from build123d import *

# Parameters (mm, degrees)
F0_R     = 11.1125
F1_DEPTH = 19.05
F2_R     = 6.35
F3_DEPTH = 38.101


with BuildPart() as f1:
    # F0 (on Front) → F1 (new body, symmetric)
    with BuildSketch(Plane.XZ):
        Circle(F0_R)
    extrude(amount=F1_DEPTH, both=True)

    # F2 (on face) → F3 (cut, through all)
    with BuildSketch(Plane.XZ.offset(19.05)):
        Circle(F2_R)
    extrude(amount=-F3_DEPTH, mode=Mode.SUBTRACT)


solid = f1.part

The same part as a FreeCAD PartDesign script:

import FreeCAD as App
import Part
import Sketcher

V = App.Vector
Q = App.Units.Quantity

doc = App.newDocument("Part")
body = doc.addObject("PartDesign::Body", "Body")

sketch1 = doc.addObject("Sketcher::SketchObject", "Sketch")
body.addObject(sketch1)
sketch1.AttachmentSupport = (doc.XZ_Plane, [""])
sketch1.MapMode = "FlatFace"
sketch1.addGeometry(Part.Circle(V(0, 0, 0), V(0, 0, 1), 11), False)
sketch1.addConstraint(Sketcher.Constraint("Coincident", 0, 3, -1, 1))
sketch1.addConstraint(Sketcher.Constraint("Diameter", 0, Q("0.875 in")))
pad1 = doc.addObject("PartDesign::Pad", "Pad")
body.addObject(pad1)
pad1.Profile = sketch1
pad1.Length = Q("1.5 in")
pad1.Midplane = True

sketch2 = doc.addObject("Sketcher::SketchObject", "Sketch001")
body.addObject(sketch2)
sketch2.AttachmentSupport = (doc.XZ_Plane, [""])
sketch2.MapMode = "FlatFace"
sketch2.AttachmentOffset = App.Placement(V(0, 0, 0.75 * 25.4), App.Rotation())
sketch2.addGeometry(Part.Circle(V(0, 0, 0), V(0, 0, 1), 6), False)
sketch2.addConstraint(Sketcher.Constraint("Coincident", 0, 3, -1, 1))
sketch2.addConstraint(Sketcher.Constraint("Diameter", 0, Q("0.5 in")))
pocket1 = doc.addObject("PartDesign::Pocket", "Pocket")
body.addObject(pocket1)
pocket1.Profile = sketch2
pocket1.Type = "ThroughAll"

doc.recompute()
